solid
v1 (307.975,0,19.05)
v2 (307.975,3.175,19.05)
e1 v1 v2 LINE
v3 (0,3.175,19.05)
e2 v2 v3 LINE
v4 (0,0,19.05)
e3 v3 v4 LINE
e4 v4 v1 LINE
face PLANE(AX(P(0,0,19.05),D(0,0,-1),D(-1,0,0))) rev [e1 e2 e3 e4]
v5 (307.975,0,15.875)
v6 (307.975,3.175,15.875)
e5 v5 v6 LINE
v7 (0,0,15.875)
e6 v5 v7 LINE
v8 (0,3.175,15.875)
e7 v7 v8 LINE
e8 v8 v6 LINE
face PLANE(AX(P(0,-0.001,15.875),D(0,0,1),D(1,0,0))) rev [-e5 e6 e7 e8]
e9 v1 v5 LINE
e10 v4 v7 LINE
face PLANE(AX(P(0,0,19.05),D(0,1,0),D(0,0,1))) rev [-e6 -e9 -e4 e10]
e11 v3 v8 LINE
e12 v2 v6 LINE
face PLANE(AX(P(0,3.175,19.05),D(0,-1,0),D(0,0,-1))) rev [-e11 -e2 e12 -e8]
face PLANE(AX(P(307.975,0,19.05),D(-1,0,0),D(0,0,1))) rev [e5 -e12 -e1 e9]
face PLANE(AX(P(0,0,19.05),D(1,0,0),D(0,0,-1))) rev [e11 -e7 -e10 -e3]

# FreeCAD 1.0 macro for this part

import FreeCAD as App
import Part
import Sketcher
from FreeCAD import Vector
Q = App.Units.Quantity

doc = App.newDocument("Part")
body = doc.addObject("PartDesign::Body", "Body")

sketch1 = body.newObject("Sketcher::SketchObject", "Sketch")
sketch1.AttachmentSupport = (doc.getObject("XY_Plane"), [""])
sketch1.MapMode = "FlatFace"
sketch1.addGeometry([
    Part.LineSegment(Vector(0, 3.2, 0), Vector(0, 0, 0)),
    Part.LineSegment(Vector(0, 0, 0), Vector(308, 0, 0)),
    Part.LineSegment(Vector(308, 0, 0), Vector(308, 3.2, 0)),
    Part.LineSegment(Vector(308, 3.2, 0), Vector(0, 3.2, 0)),
], False)
sketch1.addConstraint([
    Sketcher.Constraint("Coincident", 0, 2, 1, 1),
    Sketcher.Constraint("Coincident", 1, 2, 2, 1),
    Sketcher.Constraint("Coincident", 2, 2, 3, 1),
    Sketcher.Constraint("Coincident", 3, 2, 0, 1),
    Sketcher.Constraint("Vertical", 0),
    Sketcher.Constraint("Horizontal", 1),
    Sketcher.Constraint("Vertical", 2),
    Sketcher.Constraint("Horizontal", 3),
    Sketcher.Constraint("Coincident", 0, 2, -1, 1),
    Sketcher.Constraint("DistanceX", 1, 1, 1, 2, Q("12.125 in")),
    Sketcher.Constraint("DistanceY", 0, 2, 0, 1, Q("0.125 in")),
])
pad1 = body.newObject("PartDesign::Pad", "Pad")
pad1.Profile = sketch1
pad1.Length = Q("0.75 in")

sketch2 = body.newObject("Sketcher::SketchObject", "Sketch001")
sketch2.AttachmentSupport = (doc.getObject("XZ_Plane"), [""])
sketch2.MapMode = "FlatFace"
sketch2.AttachmentOffset = App.Placement(Vector(0, 0, -0.125 * 25.4), App.Rotation())
sketch2.addGeometry([
    Part.LineSegment(Vector(0, 0, 0), Vector(0, 16, 0)),
    Part.LineSegment(Vector(0, 16, 0), Vector(308, 16, 0)),
    Part.LineSegment(Vector(308, 16, 0), Vector(308, 0, 0)),
    Part.LineSegment(Vector(308, 0, 0), Vector(0, 0, 0)),
], False)
sketch2.addConstraint([
    Sketcher.Constraint("Coincident", 0, 2, 1, 1),
    Sketcher.Constraint("Coincident", 1, 2, 2, 1),
    Sketcher.Constraint("Coincident", 2, 2, 3, 1),
    Sketcher.Constraint("Coincident", 3, 2, 0, 1),
    Sketcher.Constraint("Vertical", 0),
    Sketcher.Constraint("Horizontal", 1),
    Sketcher.Constraint("Vertical", 2),
    Sketcher.Constraint("Horizontal", 3),
    Sketcher.Constraint("Coincident", 3, 2, -1, 1),
    Sketcher.Constraint("DistanceX", 1, 1, 1, 2, Q("12.125 in")),
    Sketcher.Constraint("DistanceY", 0, 1, 0, 2, Q("0.625 in")),
])
pocket1 = body.newObject("PartDesign::Pocket", "Pocket")
pocket1.Profile = sketch2
pocket1.Type = "UpToFirst"
pocket1.Reversed = True

doc.recompute()
